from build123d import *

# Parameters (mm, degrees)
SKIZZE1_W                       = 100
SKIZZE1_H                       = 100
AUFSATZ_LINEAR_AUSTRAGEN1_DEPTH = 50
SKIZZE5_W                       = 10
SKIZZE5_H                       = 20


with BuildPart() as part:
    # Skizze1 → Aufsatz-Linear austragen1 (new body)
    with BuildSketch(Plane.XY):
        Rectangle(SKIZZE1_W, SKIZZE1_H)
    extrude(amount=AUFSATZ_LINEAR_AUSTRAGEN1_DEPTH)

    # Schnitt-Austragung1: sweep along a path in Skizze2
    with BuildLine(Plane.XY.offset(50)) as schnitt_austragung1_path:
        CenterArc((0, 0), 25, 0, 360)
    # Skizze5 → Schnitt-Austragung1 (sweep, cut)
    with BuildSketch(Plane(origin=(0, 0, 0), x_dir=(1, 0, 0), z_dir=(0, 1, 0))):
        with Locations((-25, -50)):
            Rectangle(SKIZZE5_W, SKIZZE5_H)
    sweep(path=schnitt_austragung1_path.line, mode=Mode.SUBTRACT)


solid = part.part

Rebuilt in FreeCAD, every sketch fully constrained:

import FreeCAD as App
import Part
import Sketcher

V = App.Vector


def add_polygon(sketch, points):
    """Adds a closed chain of lines whose ends are joined by coincident constraints."""
    first, n = sketch.GeometryCount, len(points)
    for a, b in zip(points, points[1:] + points[:1]):
        sketch.addGeometry(Part.LineSegment(App.Vector(*a, 0), App.Vector(*b, 0)), False)
    for i in range(n):
        sketch.addConstraint(Sketcher.Constraint("Coincident", first + i, 2, first + (i + 1) % n, 1))

doc = App.newDocument("Part")
body = doc.addObject("PartDesign::Body", "Body")

# Sketch on XY plane
sketch1 = body.newObject("Sketcher::SketchObject", "Sketch")
sketch1.AttachmentSupport = (doc.getObject("XY_Plane"), [""])
sketch1.MapMode = "FlatFace"
add_polygon(sketch1, [(-50, 50), (-50, -50), (50, -50), (50, 50)])  # lines 0-3
sketch1.addConstraint(Sketcher.Constraint("Vertical", 0))
sketch1.addConstraint(Sketcher.Constraint("Horizontal", 1))
sketch1.addConstraint(Sketcher.Constraint("Vertical", 2))
sketch1.addConstraint(Sketcher.Constraint("Horizontal", 3))
sketch1.addConstraint(Sketcher.Constraint("Symmetric", 0, 2, 2, 2, -1, 1))
sketch1.addConstraint(Sketcher.Constraint("Equal", 3, 0))
sketch1.addConstraint(Sketcher.Constraint("DistanceX", 1, 1, 1, 2, 100.0))
pad1 = body.newObject("PartDesign::Pad", "Pad")
pad1.Profile = sketch1
pad1.Length = 50

# Sketch on XZ plane
sketch2 = body.newObject("Sketcher::SketchObject", "Sketch001")
sketch2.AttachmentSupport = (doc.getObject("XZ_Plane"), [""])
sketch2.MapMode = "FlatFace"
add_polygon(sketch2, [(-30, 40), (-30, 60), (-20, 60), (-20, 40)])  # lines 0-3
sketch2.addConstraint(Sketcher.Constraint("Vertical", 0))
sketch2.addConstraint(Sketcher.Constraint("Horizontal", 1))
sketch2.addConstraint(Sketcher.Constraint("Vertical", 2))
sketch2.addConstraint(Sketcher.Constraint("Horizontal", 3))
sketch2.addConstraint(Sketcher.Constraint("DistanceX", 1, 1, 1, 2, 10.0))
sketch2.addConstraint(Sketcher.Constraint("DistanceY", 0, 1, 0, 2, 20.0))
sketch2.addConstraint(Sketcher.Constraint("DistanceX", 0, 2, -1, 1, 30.0))
sketch2.addConstraint(Sketcher.Constraint("DistanceY", -1, 1, 0, 2, 60.0))

# Sketch on XY plane
sketch3 = body.newObject("Sketcher::SketchObject", "Sketch002")
sketch3.AttachmentSupport = (doc.getObject("XY_Plane"), [""])
sketch3.MapMode = "FlatFace"
sketch3.AttachmentOffset = App.Placement(V(0, 0, 50), App.Rotation())
sketch3.addGeometry(Part.Circle(V(0, 0, 0), V(0, 0, 1), 25), False)
sketch3.addConstraint(Sketcher.Constraint("Coincident", 0, 3, -1, 1))
sketch3.addConstraint(Sketcher.Constraint("Diameter", 0, 50.0))
doc.recompute()

subtractivepipe = body.newObject("PartDesign::SubtractivePipe", "SubtractivePipe")
subtractivepipe.Profile = sketch2
subtractivepipe.Spine = (sketch3, ["Edge1"])

doc.recompute()
